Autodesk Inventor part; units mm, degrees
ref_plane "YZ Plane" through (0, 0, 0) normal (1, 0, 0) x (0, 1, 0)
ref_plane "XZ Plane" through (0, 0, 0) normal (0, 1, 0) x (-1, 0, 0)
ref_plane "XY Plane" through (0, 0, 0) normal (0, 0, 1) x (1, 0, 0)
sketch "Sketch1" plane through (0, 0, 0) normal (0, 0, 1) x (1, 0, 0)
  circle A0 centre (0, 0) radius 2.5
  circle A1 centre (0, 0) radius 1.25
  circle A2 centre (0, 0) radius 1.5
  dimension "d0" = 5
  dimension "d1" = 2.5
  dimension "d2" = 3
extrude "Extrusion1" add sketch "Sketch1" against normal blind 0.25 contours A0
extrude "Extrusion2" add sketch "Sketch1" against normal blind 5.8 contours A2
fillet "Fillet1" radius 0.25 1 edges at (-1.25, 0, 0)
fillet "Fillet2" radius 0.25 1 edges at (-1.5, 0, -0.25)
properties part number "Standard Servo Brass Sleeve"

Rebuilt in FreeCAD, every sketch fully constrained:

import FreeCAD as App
import Part
import Sketcher
Q = App.Units.Quantity


def edges_at(feature, points):
    """Names of the edges that pass closest to the given points."""
    edges = feature.Shape.Edges
    near = lambda p: min(range(len(edges)), key=lambda i: edges[i].distToShape(Part.Vertex(*p))[0])
    return sorted({f"Edge{near(p) + 1}" for p in points})

doc = App.newDocument("Part")
body = doc.addObject("PartDesign::Body", "Body")

# Sketch on XY plane
sketch1 = body.newObject("Sketcher::SketchObject", "Sketch")
sketch1.AttachmentSupport = (doc.getObject("XY_Plane"), [""])
sketch1.MapMode = "FlatFace"
sketch1.addGeometry(Part.Circle(App.Vector(0, 0, 0), App.Vector(0, 0, 1), 2.5), False)
sketch1.addGeometry(Part.Circle(App.Vector(0, 0, 0), App.Vector(0, 0, 1), 1.5), False)
sketch1.addConstraint(Sketcher.Constraint("Coincident", 0, 3, -1, 1))
sketch1.addConstraint(Sketcher.Constraint("Coincident", 1, 3, -1, 1))
sketch1.addConstraint(Sketcher.Constraint("Diameter", 0, Q("5 mm")))
sketch1.addConstraint(Sketcher.Constraint("Diameter", 1, Q("3 mm")))
pad1 = body.newObject("PartDesign::Pad", "Pad")
pad1.Profile = sketch1
pad1.Length = 0.25
pad1.Reversed = True

# Sketch on XY plane
sketch2 = body.newObject("Sketcher::SketchObject", "Sketch001")
sketch2.AttachmentSupport = (doc.getObject("XY_Plane"), [""])
sketch2.MapMode = "FlatFace"
sketch2.addGeometry(Part.Circle(App.Vector(0, 0, 0), App.Vector(0, 0, 1), 1.5), False)
sketch2.addGeometry(Part.Circle(App.Vector(0, 0, 0), App.Vector(0, 0, 1), 1.2), False)
sketch2.addConstraint(Sketcher.Constraint("Coincident", 0, 3, -1, 1))
sketch2.addConstraint(Sketcher.Constraint("Coincident", 1, 3, -1, 1))
sketch2.addConstraint(Sketcher.Constraint("Diameter", 0, Q("3 mm")))
sketch2.addConstraint(Sketcher.Constraint("Diameter", 1, Q("2.5 mm")))
pad2 = body.newObject("PartDesign::Pad", "Pad001")
pad2.Profile = sketch2
pad2.Length = 5.8
pad2.Reversed = True
doc.recompute()

fillet = body.newObject("PartDesign::Fillet", "Fillet")
fillet.Base = (pad2, edges_at(pad2, [(-1.25, 0, 0)]))
fillet.Radius = 0.25
doc.recompute()

fillet2 = body.newObject("PartDesign::Fillet", "Fillet001")
fillet2.Base = (fillet, edges_at(fillet, [(-1.5, 0, -0.25)]))
fillet2.Radius = 0.25

doc.recompute()
